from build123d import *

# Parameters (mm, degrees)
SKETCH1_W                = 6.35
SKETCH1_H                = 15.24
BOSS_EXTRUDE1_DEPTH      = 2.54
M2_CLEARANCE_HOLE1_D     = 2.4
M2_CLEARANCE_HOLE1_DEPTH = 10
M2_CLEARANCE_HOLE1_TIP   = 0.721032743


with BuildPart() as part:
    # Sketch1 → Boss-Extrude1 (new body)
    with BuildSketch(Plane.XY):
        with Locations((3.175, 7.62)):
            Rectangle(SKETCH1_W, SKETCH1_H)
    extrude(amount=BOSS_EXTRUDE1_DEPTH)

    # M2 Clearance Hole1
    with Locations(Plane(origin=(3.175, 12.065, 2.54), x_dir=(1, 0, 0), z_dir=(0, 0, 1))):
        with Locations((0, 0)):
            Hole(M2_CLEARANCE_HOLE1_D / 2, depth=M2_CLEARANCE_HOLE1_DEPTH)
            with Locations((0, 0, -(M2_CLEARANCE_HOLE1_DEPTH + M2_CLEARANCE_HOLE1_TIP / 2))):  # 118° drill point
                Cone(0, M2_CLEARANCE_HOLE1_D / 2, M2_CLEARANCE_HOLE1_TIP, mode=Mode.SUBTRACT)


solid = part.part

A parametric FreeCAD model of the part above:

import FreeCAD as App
import Part
import Sketcher

V = App.Vector
Q = App.Units.Quantity

doc = App.newDocument("Part")
body = doc.addObject("PartDesign::Body", "Body")

# Sketch on XY plane
sketch1 = body.newObject("Sketcher::SketchObject", "Sketch")
sketch1.AttachmentSupport = (doc.getObject("XY_Plane"), [""])
sketch1.MapMode = "FlatFace"
sketch1.addGeometry([
    Part.LineSegment(V(0, 15, 0), V(0, 0, 0)),
    Part.LineSegment(V(0, 0, 0), V(6, 0, 0)),
    Part.LineSegment(V(6, 0, 0), V(6, 15, 0)),
    Part.LineSegment(V(6, 15, 0), V(0, 15, 0)),
], False)
sketch1.addConstraint([
    Sketcher.Constraint("Coincident", 0, 2, 1, 1),
    Sketcher.Constraint("Coincident", 1, 2, 2, 1),
    Sketcher.Constraint("Coincident", 2, 2, 3, 1),
    Sketcher.Constraint("Coincident", 3, 2, 0, 1),
    Sketcher.Constraint("Vertical", 0),
    Sketcher.Constraint("Horizontal", 1),
    Sketcher.Constraint("Vertical", 2),
    Sketcher.Constraint("Horizontal", 3),
    Sketcher.Constraint("Coincident", 0, 2, -1, 1),
    Sketcher.Constraint("DistanceY", 0, 2, 0, 1, Q("0.6 in")),
    Sketcher.Constraint("DistanceX", 1, 1, 1, 2, Q("0.25 in")),
])
pad1 = body.newObject("PartDesign::Pad", "Pad")
pad1.Profile = sketch1
pad1.Length = Q("0.1 in")

# Sketch on XY plane
sketch2 = body.newObject("Sketcher::SketchObject", "Sketch001")
sketch2.AttachmentSupport = (doc.getObject("XY_Plane"), [""])
sketch2.MapMode = "FlatFace"
sketch2.AttachmentOffset = App.Placement(V(0, 0, 0.1 * 25.4), App.Rotation())
sketch2.addGeometry(Part.Circle(V(3.2, 12.1, 0), V(0, 0, 1), 1.2), False)
sketch2.addConstraint([
    Sketcher.Constraint("Diameter", 0, Q("2.4 mm")),
    Sketcher.Constraint("DistanceX", -1, 1, 0, 3, Q("0.125 in")),
    Sketcher.Constraint("DistanceY", -1, 1, 0, 3, Q("0.475 in")),
])
doc.recompute()
hole = body.newObject("PartDesign::Hole", "Hole")
hole.Profile = sketch2
hole.ThreadType = "None"
hole.Diameter = 2.4
hole.DepthType = "Dimension"
hole.Depth = 10
hole.DrillPoint = "Angled"
hole.DrillPointAngle = 118

doc.recompute()
